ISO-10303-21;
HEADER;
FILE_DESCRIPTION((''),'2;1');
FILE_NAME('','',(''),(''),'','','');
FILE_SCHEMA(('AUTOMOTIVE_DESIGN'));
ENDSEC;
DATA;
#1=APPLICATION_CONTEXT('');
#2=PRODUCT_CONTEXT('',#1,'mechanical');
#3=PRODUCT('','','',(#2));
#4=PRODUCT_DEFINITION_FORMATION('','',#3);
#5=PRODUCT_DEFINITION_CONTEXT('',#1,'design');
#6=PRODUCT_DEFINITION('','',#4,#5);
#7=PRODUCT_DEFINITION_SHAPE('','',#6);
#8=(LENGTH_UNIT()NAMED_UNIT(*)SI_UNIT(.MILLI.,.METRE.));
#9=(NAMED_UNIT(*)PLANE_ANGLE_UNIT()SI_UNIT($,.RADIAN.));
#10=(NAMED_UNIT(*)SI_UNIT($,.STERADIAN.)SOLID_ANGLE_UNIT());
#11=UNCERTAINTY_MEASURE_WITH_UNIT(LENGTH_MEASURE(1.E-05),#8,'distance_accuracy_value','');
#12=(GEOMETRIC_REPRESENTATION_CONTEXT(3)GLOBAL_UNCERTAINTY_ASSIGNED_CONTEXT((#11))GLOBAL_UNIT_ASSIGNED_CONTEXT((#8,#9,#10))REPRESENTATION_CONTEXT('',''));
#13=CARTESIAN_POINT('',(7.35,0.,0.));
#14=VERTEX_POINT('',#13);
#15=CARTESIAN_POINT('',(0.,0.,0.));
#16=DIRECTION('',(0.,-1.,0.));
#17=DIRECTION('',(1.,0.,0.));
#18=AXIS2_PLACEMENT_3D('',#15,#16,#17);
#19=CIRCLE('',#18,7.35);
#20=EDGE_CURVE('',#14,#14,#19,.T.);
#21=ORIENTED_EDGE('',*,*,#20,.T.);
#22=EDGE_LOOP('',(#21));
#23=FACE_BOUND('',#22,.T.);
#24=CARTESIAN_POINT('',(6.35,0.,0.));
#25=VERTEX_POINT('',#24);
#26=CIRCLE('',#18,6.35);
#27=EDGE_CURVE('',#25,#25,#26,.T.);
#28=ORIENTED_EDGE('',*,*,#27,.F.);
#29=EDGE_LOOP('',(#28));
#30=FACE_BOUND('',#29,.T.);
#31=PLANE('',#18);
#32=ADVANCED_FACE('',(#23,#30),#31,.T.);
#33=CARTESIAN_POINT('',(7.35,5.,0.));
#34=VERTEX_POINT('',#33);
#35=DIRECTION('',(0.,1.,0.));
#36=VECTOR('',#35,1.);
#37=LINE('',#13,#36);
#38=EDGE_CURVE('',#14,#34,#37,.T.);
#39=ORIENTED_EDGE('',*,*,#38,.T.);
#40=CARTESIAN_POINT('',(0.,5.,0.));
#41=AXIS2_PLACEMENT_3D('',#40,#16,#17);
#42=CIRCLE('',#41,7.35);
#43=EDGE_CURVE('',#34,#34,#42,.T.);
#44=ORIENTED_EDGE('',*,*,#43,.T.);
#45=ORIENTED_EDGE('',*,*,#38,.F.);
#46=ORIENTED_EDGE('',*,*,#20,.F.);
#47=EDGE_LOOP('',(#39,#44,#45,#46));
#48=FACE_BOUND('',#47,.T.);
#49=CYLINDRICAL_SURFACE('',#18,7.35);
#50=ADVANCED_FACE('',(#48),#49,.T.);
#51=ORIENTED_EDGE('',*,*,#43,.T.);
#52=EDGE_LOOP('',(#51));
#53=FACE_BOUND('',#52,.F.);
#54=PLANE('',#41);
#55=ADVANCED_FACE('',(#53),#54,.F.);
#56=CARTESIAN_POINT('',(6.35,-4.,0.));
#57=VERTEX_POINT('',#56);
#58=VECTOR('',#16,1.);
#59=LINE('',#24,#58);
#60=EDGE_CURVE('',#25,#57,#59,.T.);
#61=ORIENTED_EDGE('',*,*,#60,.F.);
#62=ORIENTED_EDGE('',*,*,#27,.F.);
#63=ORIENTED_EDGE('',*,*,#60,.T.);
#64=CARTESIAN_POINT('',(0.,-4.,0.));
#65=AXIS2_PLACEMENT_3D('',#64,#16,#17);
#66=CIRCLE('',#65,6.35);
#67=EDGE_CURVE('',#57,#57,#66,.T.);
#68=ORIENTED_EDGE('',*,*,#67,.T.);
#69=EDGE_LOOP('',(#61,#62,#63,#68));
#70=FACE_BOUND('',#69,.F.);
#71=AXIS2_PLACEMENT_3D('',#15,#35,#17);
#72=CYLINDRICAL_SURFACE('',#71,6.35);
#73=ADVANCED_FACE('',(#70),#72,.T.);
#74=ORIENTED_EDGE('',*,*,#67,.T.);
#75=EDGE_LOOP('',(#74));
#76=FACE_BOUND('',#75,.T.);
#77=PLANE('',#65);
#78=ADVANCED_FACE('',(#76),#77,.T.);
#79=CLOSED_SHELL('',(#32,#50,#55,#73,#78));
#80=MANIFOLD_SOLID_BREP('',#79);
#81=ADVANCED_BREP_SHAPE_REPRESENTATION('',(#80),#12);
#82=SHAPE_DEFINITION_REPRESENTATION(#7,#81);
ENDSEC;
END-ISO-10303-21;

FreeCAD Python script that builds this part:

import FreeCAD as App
import Part
import Sketcher

V = App.Vector
Q = App.Units.Quantity

doc = App.newDocument("Part")
body = doc.addObject("PartDesign::Body", "Body")

sketch1 = doc.addObject("Sketcher::SketchObject", "Sketch")
body.addObject(sketch1)
sketch1.AttachmentSupport = (doc.XZ_Plane, [""])
sketch1.MapMode = "FlatFace"
sketch1.addGeometry(Part.Circle(V(0, 0, 0), V(0, 0, 1), 6), False)
sketch1.addConstraint([
    Sketcher.Constraint("Coincident", 0, 3, -1, 1),
    Sketcher.Constraint("Diameter", 0, Q("12.7 mm")),
])
pad1 = doc.addObject("PartDesign::Pad", "Pad")
body.addObject(pad1)
pad1.Profile = sketch1
pad1.Length = 4

sketch2 = doc.addObject("Sketcher::SketchObject", "Sketch001")
body.addObject(sketch2)
sketch2.AttachmentSupport = (doc.XZ_Plane, [""])
sketch2.MapMode = "FlatFace"
sketch2.addGeometry(Part.Circle(V(0, 0, 0), V(0, 0, 1), 7), False)
sketch2.addConstraint([
    Sketcher.Constraint("Coincident", 0, 3, -1, 1),
    Sketcher.Constraint("Diameter", 0, Q("14.7 mm")),
])
pad2 = doc.addObject("PartDesign::Pad", "Pad001")
body.addObject(pad2)
pad2.Profile = sketch2
pad2.Length = 5
pad2.Reversed = True

doc.recompute()
